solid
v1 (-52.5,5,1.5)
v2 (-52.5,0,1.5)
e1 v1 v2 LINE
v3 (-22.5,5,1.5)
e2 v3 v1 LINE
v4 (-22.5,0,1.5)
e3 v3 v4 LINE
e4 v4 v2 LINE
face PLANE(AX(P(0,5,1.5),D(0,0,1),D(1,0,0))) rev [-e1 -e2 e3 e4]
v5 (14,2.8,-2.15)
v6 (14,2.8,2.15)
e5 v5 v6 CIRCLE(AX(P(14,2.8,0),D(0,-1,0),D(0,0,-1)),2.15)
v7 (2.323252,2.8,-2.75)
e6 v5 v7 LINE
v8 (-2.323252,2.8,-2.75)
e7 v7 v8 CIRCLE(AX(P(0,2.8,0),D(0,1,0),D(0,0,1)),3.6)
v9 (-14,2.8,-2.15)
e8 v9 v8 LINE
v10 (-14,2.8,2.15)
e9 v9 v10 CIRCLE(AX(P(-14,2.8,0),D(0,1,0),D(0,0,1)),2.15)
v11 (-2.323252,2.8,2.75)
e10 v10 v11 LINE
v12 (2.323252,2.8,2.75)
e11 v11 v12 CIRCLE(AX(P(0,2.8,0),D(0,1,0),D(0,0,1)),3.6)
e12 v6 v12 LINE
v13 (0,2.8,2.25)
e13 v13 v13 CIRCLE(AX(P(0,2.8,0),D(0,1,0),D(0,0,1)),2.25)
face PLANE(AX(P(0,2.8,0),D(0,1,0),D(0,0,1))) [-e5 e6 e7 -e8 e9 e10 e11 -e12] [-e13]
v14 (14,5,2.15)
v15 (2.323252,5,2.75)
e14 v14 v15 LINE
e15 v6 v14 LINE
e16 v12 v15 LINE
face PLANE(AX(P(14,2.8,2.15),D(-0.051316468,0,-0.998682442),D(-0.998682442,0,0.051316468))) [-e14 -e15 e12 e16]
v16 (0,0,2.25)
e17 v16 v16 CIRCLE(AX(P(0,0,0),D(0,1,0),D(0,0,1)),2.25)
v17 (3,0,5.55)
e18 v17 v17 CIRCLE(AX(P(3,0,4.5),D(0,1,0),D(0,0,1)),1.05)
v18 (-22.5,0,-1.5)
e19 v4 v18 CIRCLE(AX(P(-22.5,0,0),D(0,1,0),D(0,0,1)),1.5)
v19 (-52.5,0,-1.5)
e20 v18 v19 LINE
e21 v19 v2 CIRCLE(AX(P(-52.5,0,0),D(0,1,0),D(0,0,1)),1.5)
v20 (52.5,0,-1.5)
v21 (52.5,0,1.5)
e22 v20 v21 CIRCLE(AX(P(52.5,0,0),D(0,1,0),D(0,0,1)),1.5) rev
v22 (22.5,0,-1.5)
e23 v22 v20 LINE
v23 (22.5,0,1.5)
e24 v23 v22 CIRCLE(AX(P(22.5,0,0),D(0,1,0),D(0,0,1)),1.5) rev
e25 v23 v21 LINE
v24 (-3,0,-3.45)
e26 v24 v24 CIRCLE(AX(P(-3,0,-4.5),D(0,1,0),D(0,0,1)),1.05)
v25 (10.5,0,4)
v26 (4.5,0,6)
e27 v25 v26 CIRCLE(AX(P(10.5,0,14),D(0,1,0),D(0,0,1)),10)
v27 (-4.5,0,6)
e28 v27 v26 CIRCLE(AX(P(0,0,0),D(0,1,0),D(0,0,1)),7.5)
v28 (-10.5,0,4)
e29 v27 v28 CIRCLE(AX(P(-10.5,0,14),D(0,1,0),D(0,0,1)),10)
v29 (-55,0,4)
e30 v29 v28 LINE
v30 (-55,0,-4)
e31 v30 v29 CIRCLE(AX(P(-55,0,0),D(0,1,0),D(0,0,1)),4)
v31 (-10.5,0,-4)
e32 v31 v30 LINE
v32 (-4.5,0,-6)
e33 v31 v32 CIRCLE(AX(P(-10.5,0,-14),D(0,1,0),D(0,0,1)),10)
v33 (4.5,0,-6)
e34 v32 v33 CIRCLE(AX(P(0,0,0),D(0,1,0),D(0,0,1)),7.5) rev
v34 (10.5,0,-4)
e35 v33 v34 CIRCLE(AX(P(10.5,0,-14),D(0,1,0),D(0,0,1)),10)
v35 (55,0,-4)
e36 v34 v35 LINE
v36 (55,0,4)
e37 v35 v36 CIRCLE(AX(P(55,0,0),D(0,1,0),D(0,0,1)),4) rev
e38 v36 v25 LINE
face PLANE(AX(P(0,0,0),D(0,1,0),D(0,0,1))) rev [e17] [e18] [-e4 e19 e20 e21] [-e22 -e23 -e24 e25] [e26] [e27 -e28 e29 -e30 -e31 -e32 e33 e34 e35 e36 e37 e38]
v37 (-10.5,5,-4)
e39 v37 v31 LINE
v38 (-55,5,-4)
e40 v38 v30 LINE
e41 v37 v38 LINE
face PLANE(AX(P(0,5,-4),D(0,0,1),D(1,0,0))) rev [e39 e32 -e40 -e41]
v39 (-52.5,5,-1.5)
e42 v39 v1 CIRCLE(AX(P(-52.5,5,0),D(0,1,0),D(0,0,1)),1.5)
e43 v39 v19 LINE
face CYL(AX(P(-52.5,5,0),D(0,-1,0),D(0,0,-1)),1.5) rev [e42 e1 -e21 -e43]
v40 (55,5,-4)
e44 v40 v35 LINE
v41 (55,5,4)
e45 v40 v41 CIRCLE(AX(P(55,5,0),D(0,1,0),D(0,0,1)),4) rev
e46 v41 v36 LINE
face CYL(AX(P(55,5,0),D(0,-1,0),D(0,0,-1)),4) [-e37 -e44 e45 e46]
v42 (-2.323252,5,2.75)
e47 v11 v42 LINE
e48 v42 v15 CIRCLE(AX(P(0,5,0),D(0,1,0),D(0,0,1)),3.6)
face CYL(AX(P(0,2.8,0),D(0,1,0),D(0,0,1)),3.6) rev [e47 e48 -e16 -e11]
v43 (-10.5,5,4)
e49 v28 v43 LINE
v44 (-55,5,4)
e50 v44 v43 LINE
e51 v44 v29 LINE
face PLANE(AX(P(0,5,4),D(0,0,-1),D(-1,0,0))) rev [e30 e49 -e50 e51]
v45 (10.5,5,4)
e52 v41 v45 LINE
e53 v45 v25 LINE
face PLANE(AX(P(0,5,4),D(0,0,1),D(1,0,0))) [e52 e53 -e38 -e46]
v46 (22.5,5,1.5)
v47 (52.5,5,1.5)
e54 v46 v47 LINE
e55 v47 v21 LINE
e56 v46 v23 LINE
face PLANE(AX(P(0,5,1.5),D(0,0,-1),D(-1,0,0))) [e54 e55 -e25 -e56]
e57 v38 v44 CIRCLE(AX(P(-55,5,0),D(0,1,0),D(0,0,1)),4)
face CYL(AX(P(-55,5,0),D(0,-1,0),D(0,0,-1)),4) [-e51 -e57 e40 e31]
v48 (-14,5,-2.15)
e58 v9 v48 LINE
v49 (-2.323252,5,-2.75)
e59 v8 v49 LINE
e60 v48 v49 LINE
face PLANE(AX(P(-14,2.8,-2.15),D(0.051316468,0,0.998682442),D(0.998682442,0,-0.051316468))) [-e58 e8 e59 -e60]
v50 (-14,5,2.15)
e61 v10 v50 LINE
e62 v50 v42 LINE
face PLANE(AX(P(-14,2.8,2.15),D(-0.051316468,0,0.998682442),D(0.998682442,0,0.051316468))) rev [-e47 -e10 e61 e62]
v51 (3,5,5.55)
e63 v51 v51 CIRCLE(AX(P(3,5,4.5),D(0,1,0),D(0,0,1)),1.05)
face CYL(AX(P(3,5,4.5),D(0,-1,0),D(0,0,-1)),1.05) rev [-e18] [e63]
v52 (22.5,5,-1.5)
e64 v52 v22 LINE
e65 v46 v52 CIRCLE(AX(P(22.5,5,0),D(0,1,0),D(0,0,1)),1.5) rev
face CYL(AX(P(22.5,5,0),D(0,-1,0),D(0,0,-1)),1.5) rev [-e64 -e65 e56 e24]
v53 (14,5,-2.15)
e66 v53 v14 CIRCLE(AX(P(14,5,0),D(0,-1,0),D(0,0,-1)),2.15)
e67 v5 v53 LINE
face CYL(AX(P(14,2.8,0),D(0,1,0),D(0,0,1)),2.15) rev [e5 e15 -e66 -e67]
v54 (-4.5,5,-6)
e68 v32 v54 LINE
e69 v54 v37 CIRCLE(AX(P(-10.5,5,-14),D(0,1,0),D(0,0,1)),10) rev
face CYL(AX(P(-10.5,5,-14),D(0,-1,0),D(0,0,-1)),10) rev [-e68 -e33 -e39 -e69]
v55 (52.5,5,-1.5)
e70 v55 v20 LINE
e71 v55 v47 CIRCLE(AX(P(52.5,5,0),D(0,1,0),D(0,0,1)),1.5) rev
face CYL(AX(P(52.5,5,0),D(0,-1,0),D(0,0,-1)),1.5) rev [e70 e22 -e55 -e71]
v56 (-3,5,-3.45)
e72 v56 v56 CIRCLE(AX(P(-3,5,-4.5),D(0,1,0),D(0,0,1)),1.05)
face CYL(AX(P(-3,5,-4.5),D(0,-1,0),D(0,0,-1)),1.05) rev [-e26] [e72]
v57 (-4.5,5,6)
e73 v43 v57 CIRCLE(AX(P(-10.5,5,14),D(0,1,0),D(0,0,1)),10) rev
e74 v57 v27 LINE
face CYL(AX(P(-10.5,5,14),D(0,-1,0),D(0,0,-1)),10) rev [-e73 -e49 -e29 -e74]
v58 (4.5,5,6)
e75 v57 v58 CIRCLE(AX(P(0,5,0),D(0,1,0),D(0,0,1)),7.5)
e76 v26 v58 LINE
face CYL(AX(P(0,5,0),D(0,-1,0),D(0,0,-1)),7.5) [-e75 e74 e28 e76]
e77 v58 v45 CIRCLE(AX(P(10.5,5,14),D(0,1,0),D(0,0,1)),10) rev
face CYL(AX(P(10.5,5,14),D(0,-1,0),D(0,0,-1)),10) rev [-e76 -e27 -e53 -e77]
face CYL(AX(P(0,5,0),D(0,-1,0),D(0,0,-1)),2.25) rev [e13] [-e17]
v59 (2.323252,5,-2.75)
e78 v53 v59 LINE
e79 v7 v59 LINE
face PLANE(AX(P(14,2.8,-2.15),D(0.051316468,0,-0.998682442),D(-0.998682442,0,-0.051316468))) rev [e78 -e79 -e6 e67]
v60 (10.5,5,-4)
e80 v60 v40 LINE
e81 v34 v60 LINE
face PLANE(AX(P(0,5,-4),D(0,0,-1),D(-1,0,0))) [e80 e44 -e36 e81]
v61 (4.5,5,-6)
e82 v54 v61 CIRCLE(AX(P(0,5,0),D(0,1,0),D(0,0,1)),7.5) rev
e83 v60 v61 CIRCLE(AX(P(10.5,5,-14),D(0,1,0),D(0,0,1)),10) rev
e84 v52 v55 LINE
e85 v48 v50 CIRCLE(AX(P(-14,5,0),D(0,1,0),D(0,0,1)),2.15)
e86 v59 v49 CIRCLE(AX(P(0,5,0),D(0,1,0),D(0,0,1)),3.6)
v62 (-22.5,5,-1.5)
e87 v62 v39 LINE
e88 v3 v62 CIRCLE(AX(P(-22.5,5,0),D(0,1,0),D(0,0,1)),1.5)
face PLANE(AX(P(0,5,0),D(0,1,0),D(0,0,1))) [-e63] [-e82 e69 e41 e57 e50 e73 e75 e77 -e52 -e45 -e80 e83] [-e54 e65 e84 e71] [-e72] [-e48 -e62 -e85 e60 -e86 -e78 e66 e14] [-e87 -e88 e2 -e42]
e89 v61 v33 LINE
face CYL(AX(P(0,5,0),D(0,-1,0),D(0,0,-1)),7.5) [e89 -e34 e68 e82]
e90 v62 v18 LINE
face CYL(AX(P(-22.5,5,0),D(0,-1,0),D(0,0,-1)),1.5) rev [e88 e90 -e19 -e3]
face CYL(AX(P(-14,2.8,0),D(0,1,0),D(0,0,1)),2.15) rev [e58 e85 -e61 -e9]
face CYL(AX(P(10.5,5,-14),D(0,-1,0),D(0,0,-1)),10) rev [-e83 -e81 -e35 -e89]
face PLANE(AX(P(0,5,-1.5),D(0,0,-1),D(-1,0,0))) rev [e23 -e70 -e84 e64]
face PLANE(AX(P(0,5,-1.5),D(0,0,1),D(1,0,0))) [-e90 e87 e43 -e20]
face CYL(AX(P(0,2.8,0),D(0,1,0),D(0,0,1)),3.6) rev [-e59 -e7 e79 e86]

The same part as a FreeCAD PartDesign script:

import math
import FreeCAD as App
import Part
import Sketcher
from FreeCAD import Vector


def edges_at(feature, points):
    """Names of the edges that pass closest to the given points."""
    edges = feature.Shape.Edges
    near = lambda p: min(range(len(edges)), key=lambda i: edges[i].distToShape(Part.Vertex(*p))[0])
    return sorted({f"Edge{near(p) + 1}" for p in points})

doc = App.newDocument("Part")
params = doc.addObject("Spreadsheet::Sheet", "Params")
for row, (alias, value) in enumerate([
    ("sketch1_radius", "4 mm"),
    ("sketch1_diameter", "2.1 mm"),
    ("sketch1_diameter2", "4.5 mm"),
    ("sketch1_radius2", "7.5 mm"),
    ("sketch1_radius3", "1.5 mm"),
    ("pad1_length", "5 mm"),
    ("sketch2_radius", "3.6 mm"),
    ("sketch2_radius2", "2.15 mm"),
    ("pocket1_length", "2.2 mm"),
    ("fillet_radius", "10 mm"),
], start=1):
    params.set(f"A{row}", alias)
    params.set(f"B{row}", "=" + value)
    params.setAlias(f"B{row}", alias)

body = doc.addObject("PartDesign::Body", "Body")

sketch1 = body.newObject("Sketcher::SketchObject", "Sketch")
sketch1.AttachmentSupport = (doc.getObject("XZ_Plane"), [""])
sketch1.MapMode = "FlatFace"
sketch1.addGeometry(Part.LineSegment(Vector(-6.3, -4, 0), Vector(-55, -4, 0)), False)
sketch1.addGeometry(Part.ArcOfCircle(Part.Circle(Vector(-55, 0, 0), Vector(0, 0, 1), 4), math.radians(90), math.radians(270)), False)
sketch1.addGeometry(Part.LineSegment(Vector(-55, 4, 0), Vector(-6.3, 4, 0)), False)
sketch1.addGeometry(Part.ArcOfCircle(Part.Circle(Vector(0, 0, 0), Vector(0, 0, 1), 7.5), math.radians(32), math.radians(148)), False)
sketch1.addGeometry(Part.LineSegment(Vector(6.3, 4, 0), Vector(55, 4, 0)), False)
sketch1.addGeometry(Part.ArcOfCircle(Part.Circle(Vector(55, 0, 0), Vector(0, 0, 1), 4), math.radians(-90), math.radians(90)), False)
sketch1.addGeometry(Part.LineSegment(Vector(55, -4, 0), Vector(6.3, -4, 0)), False)
sketch1.addGeometry(Part.ArcOfCircle(Part.Circle(Vector(0, 0, 0), Vector(0, 0, 1), 7.5), math.radians(-148), math.radians(-32)), False)
sketch1.addGeometry(Part.Circle(Vector(3, 4.5, 0), Vector(0, 0, 1), 1.1), False)
sketch1.addGeometry(Part.ArcOfCircle(Part.Circle(Vector(-22.5, 0, 0), Vector(0, 0, 1), 1.5), math.radians(-90), math.radians(90)), False)
sketch1.addGeometry(Part.LineSegment(Vector(-22.5, 1.5, 0), Vector(-52.5, 1.5, 0)), False)
sketch1.addGeometry(Part.ArcOfCircle(Part.Circle(Vector(-52.5, 0, 0), Vector(0, 0, 1), 1.5), math.radians(90), math.radians(270)), False)
sketch1.addGeometry(Part.LineSegment(Vector(-52.5, -1.5, 0), Vector(-22.5, -1.5, 0)), False)
sketch1.addGeometry(Part.Circle(Vector(-3, -4.5, 0), Vector(0, 0, 1), 1.1), False)
sketch1.addGeometry(Part.Circle(Vector(0, 0, 0), Vector(0, 0, 1), 2.2), False)
sketch1.addGeometry(Part.LineSegment(Vector(52.5, 1.5, 0), Vector(22.5, 1.5, 0)), False)
sketch1.addGeometry(Part.ArcOfCircle(Part.Circle(Vector(22.5, 0, 0), Vector(0, 0, 1), 1.5), math.radians(90), math.radians(270)), False)
sketch1.addGeometry(Part.LineSegment(Vector(22.5, -1.5, 0), Vector(52.5, -1.5, 0)), False)
sketch1.addGeometry(Part.ArcOfCircle(Part.Circle(Vector(52.5, 0, 0), Vector(0, 0, 1), 1.5), math.radians(-90), math.radians(90)), False)
sketch1.addConstraint(Sketcher.Constraint("Tangent", 0, 2, 1, 2))
sketch1.addConstraint(Sketcher.Constraint("Tangent", 1, 1, 2, 1))
sketch1.addConstraint(Sketcher.Constraint("Coincident", 2, 2, 3, 2))
sketch1.addConstraint(Sketcher.Constraint("Coincident", 3, 1, 4, 1))
sketch1.addConstraint(Sketcher.Constraint("Tangent", 4, 2, 5, 2))
sketch1.addConstraint(Sketcher.Constraint("Tangent", 5, 1, 6, 1))
sketch1.addConstraint(Sketcher.Constraint("Coincident", 6, 2, 7, 2))
sketch1.addConstraint(Sketcher.Constraint("Coincident", 7, 1, 0, 1))
sketch1.addConstraint(Sketcher.Constraint("Tangent", 9, 2, 10, 1))
sketch1.addConstraint(Sketcher.Constraint("Tangent", 10, 2, 11, 1))
sketch1.addConstraint(Sketcher.Constraint("Tangent", 11, 2, 12, 1))
sketch1.addConstraint(Sketcher.Constraint("Tangent", 12, 2, 9, 1))
sketch1.addConstraint(Sketcher.Constraint("Tangent", 15, 2, 16, 1))
sketch1.addConstraint(Sketcher.Constraint("Tangent", 16, 2, 17, 1))
sketch1.addConstraint(Sketcher.Constraint("Tangent", 17, 2, 18, 1))
sketch1.addConstraint(Sketcher.Constraint("Tangent", 18, 2, 15, 1))
sketch1.addConstraint(Sketcher.Constraint("Horizontal", 0))
sketch1.addConstraint(Sketcher.Constraint("Horizontal", 2))
sketch1.addConstraint(Sketcher.Constraint("Horizontal", 4))
sketch1.addConstraint(Sketcher.Constraint("Horizontal", 6))
sketch1.addConstraint(Sketcher.Constraint("Horizontal", 10))
sketch1.addConstraint(Sketcher.Constraint("Horizontal", 12))
sketch1.addConstraint(Sketcher.Constraint("Horizontal", 15))
sketch1.addConstraint(Sketcher.Constraint("Horizontal", 17))
sketch1.addConstraint(Sketcher.Constraint("Coincident", 3, 3, -1, 1))
sketch1.addConstraint(Sketcher.Constraint("Coincident", 7, 3, -1, 1))
sketch1.addConstraint(Sketcher.Constraint("Coincident", 14, 3, -1, 1))
sketch1.addConstraint(Sketcher.Constraint("Equal", 1, 5))
sketch1.addConstraint(Sketcher.Constraint("Equal", 3, 7))
sketch1.addConstraint(Sketcher.Constraint("Equal", 8, 13))
sketch1.addConstraint(Sketcher.Constraint("Equal", 11, 16))
sketch1.addConstraint(Sketcher.Constraint("Symmetric", 1, 3, 5, 3, -1, 1))
sketch1.addConstraint(Sketcher.Constraint("Symmetric", 8, 3, 13, 3, -1, 1))
sketch1.addConstraint(Sketcher.Constraint("Symmetric", 9, 3, 16, 3, -1, 1))
sketch1.addConstraint(Sketcher.Constraint("Symmetric", 11, 3, 18, 3, -2))
sketch1.addConstraint(Sketcher.Constraint("PointOnObject", 1, 3, -1))
sketch1.addConstraint(Sketcher.Constraint("Radius", 1, 4.0))
sketch1.addConstraint(Sketcher.Constraint("Diameter", 8, 2.1))
sketch1.addConstraint(Sketcher.Constraint("Diameter", 14, 4.5))
sketch1.addConstraint(Sketcher.Constraint("Radius", 3, 7.5))
sketch1.addConstraint(Sketcher.Constraint("Radius", 9, 1.5))
sketch1.addConstraint(Sketcher.Constraint("DistanceX", 10, 2, 10, 1, 30.0))
sketch1.addConstraint(Sketcher.Constraint("DistanceX", 1, 3, -1, 1, 55.0))
sketch1.addConstraint(Sketcher.Constraint("DistanceX", -1, 1, 8, 3, 3.0))
sketch1.addConstraint(Sketcher.Constraint("DistanceY", 13, 3, 8, 3, 9.0))
sketch1.addConstraint(Sketcher.Constraint("DistanceX", 9, 3, -1, 1, 22.5))
sketch1.setExpression("Constraints[36]", "Params.sketch1_radius")
sketch1.setExpression("Constraints[37]", "Params.sketch1_diameter")
sketch1.setExpression("Constraints[38]", "Params.sketch1_diameter2")
sketch1.setExpression("Constraints[39]", "Params.sketch1_radius2")
sketch1.setExpression("Constraints[40]", "Params.sketch1_radius3")
pad1 = body.newObject("PartDesign::Pad", "Pad")
pad1.Profile = sketch1
pad1.setExpression("Length", "Params.pad1_length")
pad1.Reversed = True

sketch2 = body.newObject("Sketcher::SketchObject", "Sketch001")
sketch2.AttachmentSupport = (doc.getObject("XZ_Plane"), [""])
sketch2.MapMode = "FlatFace"
sketch2.AttachmentOffset = App.Placement(Vector(0, 0, -5), App.Rotation())
sketch2.addGeometry(Part.LineSegment(Vector(-2.3, -2.8, 0), Vector(-14, -2.1, 0)), False)
sketch2.addGeometry(Part.ArcOfCircle(Part.Circle(Vector(-14, 0, 0), Vector(0, 0, 1), 2.1), math.radians(90), math.radians(270)), False)
sketch2.addGeometry(Part.LineSegment(Vector(-14, 2.1, 0), Vector(-2.3, 2.8, 0)), False)
sketch2.addGeometry(Part.ArcOfCircle(Part.Circle(Vector(0, 0, 0), Vector(0, 0, 1), 3.6), math.radians(50), math.radians(130)), False)
sketch2.addGeometry(Part.LineSegment(Vector(2.3, 2.8, 0), Vector(14, 2.1, 0)), False)
sketch2.addGeometry(Part.ArcOfCircle(Part.Circle(Vector(14, 0, 0), Vector(0, 0, 1), 2.1), math.radians(-90), math.radians(90)), False)
sketch2.addGeometry(Part.LineSegment(Vector(14, -2.1, 0), Vector(2.3, -2.8, 0)), False)
sketch2.addGeometry(Part.ArcOfCircle(Part.Circle(Vector(0, 0, 0), Vector(0, 0, 1), 3.6), math.radians(-130), math.radians(-50)), False)
sketch2.addConstraint(Sketcher.Constraint("Coincident", 0, 2, 1, 2))
sketch2.addConstraint(Sketcher.Constraint("Coincident", 1, 1, 2, 1))
sketch2.addConstraint(Sketcher.Constraint("Coincident", 2, 2, 3, 2))
sketch2.addConstraint(Sketcher.Constraint("Coincident", 3, 1, 4, 1))
sketch2.addConstraint(Sketcher.Constraint("Coincident", 4, 2, 5, 2))
sketch2.addConstraint(Sketcher.Constraint("Coincident", 5, 1, 6, 1))
sketch2.addConstraint(Sketcher.Constraint("Coincident", 6, 2, 7, 2))
sketch2.addConstraint(Sketcher.Constraint("Coincident", 7, 1, 0, 1))
sketch2.addConstraint(Sketcher.Constraint("Coincident", 3, 3, -1, 1))
sketch2.addConstraint(Sketcher.Constraint("Coincident", 7, 3, -1, 1))
sketch2.addConstraint(Sketcher.Constraint("Equal", 1, 5))
sketch2.addConstraint(Sketcher.Constraint("Equal", 3, 7))
sketch2.addConstraint(Sketcher.Constraint("Symmetric", 1, 3, 5, 3, -1, 1))
sketch2.addConstraint(Sketcher.Constraint("Symmetric", 1, 1, 4, 2, -2))
sketch2.addConstraint(Sketcher.Constraint("Parallel", 0, 4))
sketch2.addConstraint(Sketcher.Constraint("Parallel", 2, 6))
sketch2.addConstraint(Sketcher.Constraint("Horizontal", 2, 2, 3, 1))
sketch2.addConstraint(Sketcher.Constraint("Horizontal", 6, 2, 7, 1))
sketch2.addConstraint(Sketcher.Constraint("Vertical", 1, 3, 0, 2))
sketch2.addConstraint(Sketcher.Constraint("Vertical", 0, 2, 1, 1))
sketch2.addConstraint(Sketcher.Constraint("Radius", 3, 3.6))
sketch2.addConstraint(Sketcher.Constraint("Radius", 1, 2.15))
sketch2.addConstraint(Sketcher.Constraint("DistanceX", 1, 3, -1, 1, 14.0))
sketch2.addConstraint(Sketcher.Constraint("DistanceY", 1, 1, 2, 2, 0.6))
sketch2.setExpression("Constraints[20]", "Params.sketch2_radius")
sketch2.setExpression("Constraints[21]", "Params.sketch2_radius2")
pocket1 = body.newObject("PartDesign::Pocket", "Pocket")
pocket1.Profile = sketch2
pocket1.setExpression("Length", "Params.pocket1_length")
pocket1.Reversed = True
doc.recompute()

fillet = body.newObject("PartDesign::Fillet", "Fillet")
fillet.Base = (pocket1, edges_at(pocket1, [
    (6.344, 2.5, 4),
    (-6.344, 2.5, 4),
    (-6.344, 2.5, -4),
    (6.344, 2.5, -4),
]))
fillet.setExpression("Radius", "Params.fillet_radius")

doc.recompute()
